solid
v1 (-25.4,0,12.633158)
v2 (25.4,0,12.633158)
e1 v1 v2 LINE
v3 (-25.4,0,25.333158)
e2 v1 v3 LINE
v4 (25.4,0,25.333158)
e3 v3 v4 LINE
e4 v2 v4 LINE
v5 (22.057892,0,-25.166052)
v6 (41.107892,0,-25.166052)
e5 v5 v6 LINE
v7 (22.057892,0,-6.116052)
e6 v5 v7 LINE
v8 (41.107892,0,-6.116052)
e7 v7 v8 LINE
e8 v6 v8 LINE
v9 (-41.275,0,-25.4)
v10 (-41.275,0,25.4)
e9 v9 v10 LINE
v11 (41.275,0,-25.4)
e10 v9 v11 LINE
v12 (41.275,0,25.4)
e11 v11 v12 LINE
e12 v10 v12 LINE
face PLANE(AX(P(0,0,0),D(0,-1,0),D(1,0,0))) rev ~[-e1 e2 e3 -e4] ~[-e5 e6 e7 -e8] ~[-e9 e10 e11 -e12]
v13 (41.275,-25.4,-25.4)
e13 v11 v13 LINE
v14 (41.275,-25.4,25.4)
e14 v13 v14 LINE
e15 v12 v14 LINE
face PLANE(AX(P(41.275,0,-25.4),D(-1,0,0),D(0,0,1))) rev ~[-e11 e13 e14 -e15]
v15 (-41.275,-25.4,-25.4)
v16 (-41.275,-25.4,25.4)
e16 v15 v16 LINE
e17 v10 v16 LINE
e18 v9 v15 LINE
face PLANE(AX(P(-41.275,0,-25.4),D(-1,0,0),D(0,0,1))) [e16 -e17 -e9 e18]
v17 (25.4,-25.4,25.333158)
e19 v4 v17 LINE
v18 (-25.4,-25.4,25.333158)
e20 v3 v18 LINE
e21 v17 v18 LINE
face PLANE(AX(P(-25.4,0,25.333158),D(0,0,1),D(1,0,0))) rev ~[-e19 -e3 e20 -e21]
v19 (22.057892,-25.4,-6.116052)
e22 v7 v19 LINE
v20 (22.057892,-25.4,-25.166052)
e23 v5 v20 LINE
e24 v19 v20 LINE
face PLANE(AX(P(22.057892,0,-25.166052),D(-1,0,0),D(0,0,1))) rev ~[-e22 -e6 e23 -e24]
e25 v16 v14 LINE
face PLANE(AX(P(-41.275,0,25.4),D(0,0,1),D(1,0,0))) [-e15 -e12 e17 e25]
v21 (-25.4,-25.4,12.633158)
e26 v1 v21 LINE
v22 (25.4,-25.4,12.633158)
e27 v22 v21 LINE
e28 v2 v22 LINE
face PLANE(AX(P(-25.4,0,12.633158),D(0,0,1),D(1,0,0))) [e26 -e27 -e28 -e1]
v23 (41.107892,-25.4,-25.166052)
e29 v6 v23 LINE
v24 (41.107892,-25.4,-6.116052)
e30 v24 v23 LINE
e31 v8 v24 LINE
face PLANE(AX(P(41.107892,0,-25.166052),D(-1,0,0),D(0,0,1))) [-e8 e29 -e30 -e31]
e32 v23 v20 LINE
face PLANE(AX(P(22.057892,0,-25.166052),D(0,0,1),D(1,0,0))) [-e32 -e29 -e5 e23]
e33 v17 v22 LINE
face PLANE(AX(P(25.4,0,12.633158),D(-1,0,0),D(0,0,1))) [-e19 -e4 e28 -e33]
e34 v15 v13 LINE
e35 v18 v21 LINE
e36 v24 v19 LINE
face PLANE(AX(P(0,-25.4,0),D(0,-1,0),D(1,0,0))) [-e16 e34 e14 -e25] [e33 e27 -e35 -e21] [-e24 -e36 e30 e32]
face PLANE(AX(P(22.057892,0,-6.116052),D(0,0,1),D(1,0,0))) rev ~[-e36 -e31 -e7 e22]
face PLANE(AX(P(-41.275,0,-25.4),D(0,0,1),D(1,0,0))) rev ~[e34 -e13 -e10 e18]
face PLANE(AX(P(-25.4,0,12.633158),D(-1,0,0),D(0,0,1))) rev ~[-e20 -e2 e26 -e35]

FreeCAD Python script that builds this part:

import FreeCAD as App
import Part
import Sketcher
Q = App.Units.Quantity


def add_polygon(sketch, points):
    """Adds a closed chain of lines whose ends are joined by coincident constraints."""
    first, n = sketch.GeometryCount, len(points)
    for a, b in zip(points, points[1:] + points[:1]):
        sketch.addGeometry(Part.LineSegment(App.Vector(*a, 0), App.Vector(*b, 0)), False)
    for i in range(n):
        sketch.addConstraint(Sketcher.Constraint("Coincident", first + i, 2, first + (i + 1) % n, 1))

doc = App.newDocument("Part")
body = doc.addObject("PartDesign::Body", "Body")

# Sketch on XZ plane
sketch1 = body.newObject("Sketcher::SketchObject", "Sketch")
sketch1.AttachmentSupport = (doc.getObject("XZ_Plane"), [""])
sketch1.MapMode = "FlatFace"
add_polygon(sketch1, [(-41, 25), (-41, -25), (41, -25), (41, 25)])  # lines 0-3
sketch1.addConstraint([
    Sketcher.Constraint("Vertical", 0),
    Sketcher.Constraint("Horizontal", 1),
    Sketcher.Constraint("Vertical", 2),
    Sketcher.Constraint("Horizontal", 3),
    Sketcher.Constraint("Symmetric", 0, 2, 2, 2, -1, 1),
    Sketcher.Constraint("DistanceY", 0, 2, 0, 1, Q("2 in")),
    Sketcher.Constraint("DistanceX", 1, 1, 1, 2, Q("3.25 in")),
])
pad1 = body.newObject("PartDesign::Pad", "Pad")
pad1.Profile = sketch1
pad1.Length = Q("1 in")

# Sketch on XZ plane
sketch2 = body.newObject("Sketcher::SketchObject", "Sketch001")
sketch2.AttachmentSupport = (doc.getObject("XZ_Plane"), [""])
sketch2.MapMode = "FlatFace"
add_polygon(sketch2, [(-25, 25), (-25, 13), (25, 13), (25, 25)])  # lines 0-3
sketch2.addConstraint([
    Sketcher.Constraint("Vertical", 0),
    Sketcher.Constraint("Horizontal", 1),
    Sketcher.Constraint("Vertical", 2),
    Sketcher.Constraint("Horizontal", 3),
    Sketcher.Constraint("DistanceX", 1, 1, 1, 2, Q("2 in")),
    Sketcher.Constraint("DistanceY", 0, 2, 0, 1, Q("0.5 in")),
    Sketcher.Constraint("DistanceX", 0, 2, -1, 1, Q("1 in")),
    Sketcher.Constraint("DistanceY", -1, 1, 2, 2, 25.333158),
])
pocket1 = body.newObject("PartDesign::Pocket", "Pocket")
pocket1.Profile = sketch2
pocket1.Length = Q("1.98 in")
pocket1.Reversed = True

# Sketch on XZ plane
sketch3 = body.newObject("Sketcher::SketchObject", "Sketch002")
sketch3.AttachmentSupport = (doc.getObject("XZ_Plane"), [""])
sketch3.MapMode = "FlatFace"
add_polygon(sketch3, [(22, -6), (22, -25), (41, -25), (41, -6)])  # lines 0-3
sketch3.addConstraint([
    Sketcher.Constraint("Vertical", 0),
    Sketcher.Constraint("Horizontal", 1),
    Sketcher.Constraint("Vertical", 2),
    Sketcher.Constraint("Horizontal", 3),
    Sketcher.Constraint("Equal", 3, 0),
    Sketcher.Constraint("DistanceX", 1, 1, 1, 2, Q("0.75 in")),
    Sketcher.Constraint("DistanceX", -1, 1, 0, 2, 22.057892),
    Sketcher.Constraint("DistanceY", 2, 2, -1, 1, 6.116052),
])
pocket2 = body.newObject("PartDesign::Pocket", "Pocket001")
pocket2.Profile = sketch3
pocket2.Length = Q("2.86 in")
pocket2.Reversed = True

doc.recompute()
